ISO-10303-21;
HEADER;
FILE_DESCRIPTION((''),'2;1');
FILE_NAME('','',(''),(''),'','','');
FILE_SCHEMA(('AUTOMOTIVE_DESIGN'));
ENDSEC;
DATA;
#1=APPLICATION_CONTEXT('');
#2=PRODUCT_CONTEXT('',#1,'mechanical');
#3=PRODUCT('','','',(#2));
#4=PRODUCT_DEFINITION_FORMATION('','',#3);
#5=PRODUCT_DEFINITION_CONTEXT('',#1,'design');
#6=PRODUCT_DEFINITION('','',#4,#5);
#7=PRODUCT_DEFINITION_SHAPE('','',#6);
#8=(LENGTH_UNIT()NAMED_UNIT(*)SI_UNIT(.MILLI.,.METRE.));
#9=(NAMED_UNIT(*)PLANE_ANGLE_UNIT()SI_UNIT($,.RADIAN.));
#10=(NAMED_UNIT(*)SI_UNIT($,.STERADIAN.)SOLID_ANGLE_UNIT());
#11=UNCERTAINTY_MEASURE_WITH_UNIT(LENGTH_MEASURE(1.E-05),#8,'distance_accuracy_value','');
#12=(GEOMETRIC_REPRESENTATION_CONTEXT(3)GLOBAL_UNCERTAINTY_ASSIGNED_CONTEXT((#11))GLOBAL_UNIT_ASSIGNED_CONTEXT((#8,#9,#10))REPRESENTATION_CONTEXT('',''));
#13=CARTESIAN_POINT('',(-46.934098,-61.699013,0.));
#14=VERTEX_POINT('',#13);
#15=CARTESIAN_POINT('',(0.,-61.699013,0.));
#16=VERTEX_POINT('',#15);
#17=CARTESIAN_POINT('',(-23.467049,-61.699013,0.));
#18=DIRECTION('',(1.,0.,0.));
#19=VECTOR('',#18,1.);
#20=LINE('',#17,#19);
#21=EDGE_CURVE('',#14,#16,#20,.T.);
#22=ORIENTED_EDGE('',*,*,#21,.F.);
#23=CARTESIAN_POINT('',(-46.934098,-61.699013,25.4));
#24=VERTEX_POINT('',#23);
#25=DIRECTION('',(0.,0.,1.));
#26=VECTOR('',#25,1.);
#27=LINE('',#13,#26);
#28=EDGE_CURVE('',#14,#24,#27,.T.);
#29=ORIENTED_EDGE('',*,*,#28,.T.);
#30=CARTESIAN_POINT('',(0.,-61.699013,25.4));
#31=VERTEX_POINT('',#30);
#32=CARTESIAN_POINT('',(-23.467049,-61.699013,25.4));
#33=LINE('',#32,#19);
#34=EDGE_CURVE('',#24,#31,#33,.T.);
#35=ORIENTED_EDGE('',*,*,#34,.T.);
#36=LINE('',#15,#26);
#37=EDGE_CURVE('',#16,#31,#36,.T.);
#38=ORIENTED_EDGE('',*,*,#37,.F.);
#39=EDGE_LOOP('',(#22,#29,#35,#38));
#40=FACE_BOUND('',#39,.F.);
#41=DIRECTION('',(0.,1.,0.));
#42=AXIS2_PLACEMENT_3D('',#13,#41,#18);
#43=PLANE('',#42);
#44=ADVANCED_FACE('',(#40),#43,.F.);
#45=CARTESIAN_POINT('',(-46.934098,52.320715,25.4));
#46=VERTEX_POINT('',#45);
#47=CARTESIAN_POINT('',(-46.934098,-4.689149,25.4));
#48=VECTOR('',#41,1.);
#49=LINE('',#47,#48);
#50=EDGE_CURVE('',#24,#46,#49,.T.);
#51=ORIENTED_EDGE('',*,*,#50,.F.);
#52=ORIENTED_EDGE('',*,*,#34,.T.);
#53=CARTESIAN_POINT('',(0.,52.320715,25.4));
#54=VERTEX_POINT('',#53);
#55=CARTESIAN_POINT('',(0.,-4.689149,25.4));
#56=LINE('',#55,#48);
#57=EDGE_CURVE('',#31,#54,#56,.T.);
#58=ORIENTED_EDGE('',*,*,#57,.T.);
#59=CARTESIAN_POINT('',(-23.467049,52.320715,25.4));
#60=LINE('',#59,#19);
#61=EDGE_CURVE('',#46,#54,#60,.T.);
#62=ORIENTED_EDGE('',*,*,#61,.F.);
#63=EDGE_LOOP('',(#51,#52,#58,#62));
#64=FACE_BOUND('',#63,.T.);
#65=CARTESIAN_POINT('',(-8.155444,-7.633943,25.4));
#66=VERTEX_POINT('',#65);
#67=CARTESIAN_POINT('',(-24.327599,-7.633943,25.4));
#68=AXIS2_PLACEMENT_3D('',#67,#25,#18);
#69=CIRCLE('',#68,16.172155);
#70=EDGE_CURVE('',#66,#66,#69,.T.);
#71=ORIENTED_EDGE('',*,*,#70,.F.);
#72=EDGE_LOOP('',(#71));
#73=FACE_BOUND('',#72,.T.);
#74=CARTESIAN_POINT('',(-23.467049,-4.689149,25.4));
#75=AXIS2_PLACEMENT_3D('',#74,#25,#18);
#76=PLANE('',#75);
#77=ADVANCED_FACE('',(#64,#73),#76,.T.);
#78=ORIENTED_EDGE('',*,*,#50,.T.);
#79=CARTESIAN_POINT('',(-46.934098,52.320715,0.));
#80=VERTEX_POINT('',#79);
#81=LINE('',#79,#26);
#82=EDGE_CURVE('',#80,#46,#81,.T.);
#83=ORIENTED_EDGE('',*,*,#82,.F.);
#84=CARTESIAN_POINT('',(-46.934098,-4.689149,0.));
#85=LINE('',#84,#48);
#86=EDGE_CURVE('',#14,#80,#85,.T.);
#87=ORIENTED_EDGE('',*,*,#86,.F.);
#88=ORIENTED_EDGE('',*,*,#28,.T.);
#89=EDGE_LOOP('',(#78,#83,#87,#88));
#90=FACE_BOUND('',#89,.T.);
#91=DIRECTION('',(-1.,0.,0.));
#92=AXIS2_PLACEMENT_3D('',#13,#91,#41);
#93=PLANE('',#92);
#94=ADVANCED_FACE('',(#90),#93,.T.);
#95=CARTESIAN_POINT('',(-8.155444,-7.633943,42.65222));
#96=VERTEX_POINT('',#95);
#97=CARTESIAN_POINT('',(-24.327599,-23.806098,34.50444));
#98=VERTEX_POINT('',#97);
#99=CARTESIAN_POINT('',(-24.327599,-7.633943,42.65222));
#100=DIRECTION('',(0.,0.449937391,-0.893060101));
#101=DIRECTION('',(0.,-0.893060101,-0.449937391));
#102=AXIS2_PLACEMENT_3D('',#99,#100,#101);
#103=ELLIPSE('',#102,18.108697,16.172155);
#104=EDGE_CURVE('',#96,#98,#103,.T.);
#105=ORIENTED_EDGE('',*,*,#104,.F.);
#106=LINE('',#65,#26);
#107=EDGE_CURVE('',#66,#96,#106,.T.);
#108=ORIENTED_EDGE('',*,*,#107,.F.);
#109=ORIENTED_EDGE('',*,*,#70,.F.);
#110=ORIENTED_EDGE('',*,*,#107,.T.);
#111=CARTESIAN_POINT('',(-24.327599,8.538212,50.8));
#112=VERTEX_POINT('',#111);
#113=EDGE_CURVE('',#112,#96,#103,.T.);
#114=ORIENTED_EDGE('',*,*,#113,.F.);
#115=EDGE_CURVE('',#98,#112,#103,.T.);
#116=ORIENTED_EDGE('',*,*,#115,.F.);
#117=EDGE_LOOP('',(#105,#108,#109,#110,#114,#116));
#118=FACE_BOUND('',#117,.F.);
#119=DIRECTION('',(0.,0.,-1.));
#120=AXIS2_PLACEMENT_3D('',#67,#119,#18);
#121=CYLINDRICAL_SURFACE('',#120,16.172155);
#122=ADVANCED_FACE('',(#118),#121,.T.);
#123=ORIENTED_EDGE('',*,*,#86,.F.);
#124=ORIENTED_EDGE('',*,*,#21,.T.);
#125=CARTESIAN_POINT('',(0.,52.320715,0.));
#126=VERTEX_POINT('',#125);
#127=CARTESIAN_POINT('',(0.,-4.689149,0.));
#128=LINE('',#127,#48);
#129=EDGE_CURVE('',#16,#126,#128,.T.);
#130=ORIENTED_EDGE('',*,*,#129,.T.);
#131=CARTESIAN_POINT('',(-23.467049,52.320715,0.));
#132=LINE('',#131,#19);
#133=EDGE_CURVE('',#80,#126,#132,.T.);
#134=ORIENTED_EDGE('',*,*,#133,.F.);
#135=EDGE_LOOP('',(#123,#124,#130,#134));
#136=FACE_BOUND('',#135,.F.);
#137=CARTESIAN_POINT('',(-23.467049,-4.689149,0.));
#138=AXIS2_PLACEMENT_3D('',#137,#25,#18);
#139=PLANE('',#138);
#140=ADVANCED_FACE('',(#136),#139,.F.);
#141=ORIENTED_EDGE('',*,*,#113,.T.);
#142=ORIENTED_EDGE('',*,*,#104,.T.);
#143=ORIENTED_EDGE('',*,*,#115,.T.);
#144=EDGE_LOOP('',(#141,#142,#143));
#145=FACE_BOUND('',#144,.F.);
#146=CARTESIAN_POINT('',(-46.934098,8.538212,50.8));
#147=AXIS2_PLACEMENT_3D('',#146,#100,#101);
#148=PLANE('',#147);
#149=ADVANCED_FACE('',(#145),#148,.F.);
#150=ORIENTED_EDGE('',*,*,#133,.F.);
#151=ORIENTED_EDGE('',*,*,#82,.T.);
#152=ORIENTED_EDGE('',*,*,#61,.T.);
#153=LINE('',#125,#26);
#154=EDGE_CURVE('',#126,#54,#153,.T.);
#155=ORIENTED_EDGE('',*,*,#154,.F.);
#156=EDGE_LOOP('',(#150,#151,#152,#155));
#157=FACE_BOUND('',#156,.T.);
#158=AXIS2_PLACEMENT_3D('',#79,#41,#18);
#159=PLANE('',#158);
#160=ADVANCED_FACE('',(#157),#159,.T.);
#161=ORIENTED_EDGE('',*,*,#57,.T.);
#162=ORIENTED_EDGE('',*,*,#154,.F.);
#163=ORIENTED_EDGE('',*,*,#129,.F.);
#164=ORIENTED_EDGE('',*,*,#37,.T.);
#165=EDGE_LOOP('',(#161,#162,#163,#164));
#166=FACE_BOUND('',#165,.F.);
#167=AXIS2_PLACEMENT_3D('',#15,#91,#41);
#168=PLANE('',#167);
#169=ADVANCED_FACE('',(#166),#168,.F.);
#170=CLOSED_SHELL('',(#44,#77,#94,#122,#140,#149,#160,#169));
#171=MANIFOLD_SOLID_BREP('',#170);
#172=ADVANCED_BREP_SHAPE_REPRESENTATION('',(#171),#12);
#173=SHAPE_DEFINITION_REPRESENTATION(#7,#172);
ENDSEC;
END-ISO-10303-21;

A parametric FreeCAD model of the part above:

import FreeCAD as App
import Part
import Sketcher
from FreeCAD import Vector
Q = App.Units.Quantity


def add_polygon(sketch, points):
    """Adds a closed chain of lines whose ends are joined by coincident constraints."""
    first, n = sketch.GeometryCount, len(points)
    for a, b in zip(points, points[1:] + points[:1]):
        sketch.addGeometry(Part.LineSegment(App.Vector(*a, 0), App.Vector(*b, 0)), False)
    for i in range(n):
        sketch.addConstraint(Sketcher.Constraint("Coincident", first + i, 2, first + (i + 1) % n, 1))

doc = App.newDocument("Part")
body = doc.addObject("PartDesign::Body", "Body")

sketch1 = body.newObject("Sketcher::SketchObject", "Sketch")
sketch1.AttachmentSupport = (doc.getObject("XY_Plane"), [""])
sketch1.MapMode = "FlatFace"
add_polygon(sketch1, [(-47, 52), (-47, -62), (0, -62), (0, 52)])
sketch1.addConstraint([
    Sketcher.Constraint("Vertical", 0),
    Sketcher.Constraint("Horizontal", 1),
    Sketcher.Constraint("Vertical", 2),
    Sketcher.Constraint("Horizontal", 3),
    Sketcher.Constraint("PointOnObject", 1, 2, -2),
    Sketcher.Constraint("DistanceY", 0, 2, 0, 1, 114.019729),
    Sketcher.Constraint("DistanceX", 1, 1, 1, 2, 46.934098),
    Sketcher.Constraint("DistanceY", 0, 2, -1, 1, 61.699013),
])
pad1 = body.newObject("PartDesign::Pad", "Pad")
pad1.Profile = sketch1
pad1.Length = Q("1 in")

sketch2 = body.newObject("Sketcher::SketchObject", "Sketch001")
sketch2.AttachmentSupport = (doc.getObject("XY_Plane"), [""])
sketch2.MapMode = "FlatFace"
sketch2.AttachmentOffset = App.Placement(Vector(0, 0, 1 * 25.4), App.Rotation())
sketch2.addGeometry(Part.Circle(Vector(-24, -8, 0), Vector(0, 0, 1), 16), False)
sketch2.addConstraint([
    Sketcher.Constraint("Diameter", 0, 32.34431),
    Sketcher.Constraint("DistanceX", 0, 3, -1, 1, 24.327599),
    Sketcher.Constraint("DistanceY", 0, 3, -1, 1, 7.633943),
])
pad2 = body.newObject("PartDesign::Pad", "Pad001")
pad2.Profile = sketch2
pad2.Length = Q("1 in")

sketch3 = body.newObject("Sketcher::SketchObject", "Sketch002")
sketch3.AttachmentSupport = (doc.getObject("YZ_Plane"), [""])
sketch3.MapMode = "FlatFace"
sketch3.AttachmentOffset = App.Placement(Vector(0, 0, -46.934098), App.Rotation())
add_polygon(sketch3, [(-24, 51), (9, 51), (-24, 35)])
sketch3.addConstraint([
    Sketcher.Constraint("Horizontal", 0),
    Sketcher.Constraint("Vertical", 2),
    Sketcher.Constraint("DistanceY", -1, 1, 0, 2, Q("2 in")),
    Sketcher.Constraint("DistanceX", 0, 1, 0, 2, 32.34431),
    Sketcher.Constraint("DistanceY", 2, 1, 2, 2, 16.29556),
    Sketcher.Constraint("DistanceX", -1, 1, 0, 2, 8.538212),
])
pocket1 = body.newObject("PartDesign::Pocket", "Pocket")
pocket1.Profile = sketch3
pocket1.Type = "ThroughAll"
pocket1.Reversed = True

doc.recompute()
